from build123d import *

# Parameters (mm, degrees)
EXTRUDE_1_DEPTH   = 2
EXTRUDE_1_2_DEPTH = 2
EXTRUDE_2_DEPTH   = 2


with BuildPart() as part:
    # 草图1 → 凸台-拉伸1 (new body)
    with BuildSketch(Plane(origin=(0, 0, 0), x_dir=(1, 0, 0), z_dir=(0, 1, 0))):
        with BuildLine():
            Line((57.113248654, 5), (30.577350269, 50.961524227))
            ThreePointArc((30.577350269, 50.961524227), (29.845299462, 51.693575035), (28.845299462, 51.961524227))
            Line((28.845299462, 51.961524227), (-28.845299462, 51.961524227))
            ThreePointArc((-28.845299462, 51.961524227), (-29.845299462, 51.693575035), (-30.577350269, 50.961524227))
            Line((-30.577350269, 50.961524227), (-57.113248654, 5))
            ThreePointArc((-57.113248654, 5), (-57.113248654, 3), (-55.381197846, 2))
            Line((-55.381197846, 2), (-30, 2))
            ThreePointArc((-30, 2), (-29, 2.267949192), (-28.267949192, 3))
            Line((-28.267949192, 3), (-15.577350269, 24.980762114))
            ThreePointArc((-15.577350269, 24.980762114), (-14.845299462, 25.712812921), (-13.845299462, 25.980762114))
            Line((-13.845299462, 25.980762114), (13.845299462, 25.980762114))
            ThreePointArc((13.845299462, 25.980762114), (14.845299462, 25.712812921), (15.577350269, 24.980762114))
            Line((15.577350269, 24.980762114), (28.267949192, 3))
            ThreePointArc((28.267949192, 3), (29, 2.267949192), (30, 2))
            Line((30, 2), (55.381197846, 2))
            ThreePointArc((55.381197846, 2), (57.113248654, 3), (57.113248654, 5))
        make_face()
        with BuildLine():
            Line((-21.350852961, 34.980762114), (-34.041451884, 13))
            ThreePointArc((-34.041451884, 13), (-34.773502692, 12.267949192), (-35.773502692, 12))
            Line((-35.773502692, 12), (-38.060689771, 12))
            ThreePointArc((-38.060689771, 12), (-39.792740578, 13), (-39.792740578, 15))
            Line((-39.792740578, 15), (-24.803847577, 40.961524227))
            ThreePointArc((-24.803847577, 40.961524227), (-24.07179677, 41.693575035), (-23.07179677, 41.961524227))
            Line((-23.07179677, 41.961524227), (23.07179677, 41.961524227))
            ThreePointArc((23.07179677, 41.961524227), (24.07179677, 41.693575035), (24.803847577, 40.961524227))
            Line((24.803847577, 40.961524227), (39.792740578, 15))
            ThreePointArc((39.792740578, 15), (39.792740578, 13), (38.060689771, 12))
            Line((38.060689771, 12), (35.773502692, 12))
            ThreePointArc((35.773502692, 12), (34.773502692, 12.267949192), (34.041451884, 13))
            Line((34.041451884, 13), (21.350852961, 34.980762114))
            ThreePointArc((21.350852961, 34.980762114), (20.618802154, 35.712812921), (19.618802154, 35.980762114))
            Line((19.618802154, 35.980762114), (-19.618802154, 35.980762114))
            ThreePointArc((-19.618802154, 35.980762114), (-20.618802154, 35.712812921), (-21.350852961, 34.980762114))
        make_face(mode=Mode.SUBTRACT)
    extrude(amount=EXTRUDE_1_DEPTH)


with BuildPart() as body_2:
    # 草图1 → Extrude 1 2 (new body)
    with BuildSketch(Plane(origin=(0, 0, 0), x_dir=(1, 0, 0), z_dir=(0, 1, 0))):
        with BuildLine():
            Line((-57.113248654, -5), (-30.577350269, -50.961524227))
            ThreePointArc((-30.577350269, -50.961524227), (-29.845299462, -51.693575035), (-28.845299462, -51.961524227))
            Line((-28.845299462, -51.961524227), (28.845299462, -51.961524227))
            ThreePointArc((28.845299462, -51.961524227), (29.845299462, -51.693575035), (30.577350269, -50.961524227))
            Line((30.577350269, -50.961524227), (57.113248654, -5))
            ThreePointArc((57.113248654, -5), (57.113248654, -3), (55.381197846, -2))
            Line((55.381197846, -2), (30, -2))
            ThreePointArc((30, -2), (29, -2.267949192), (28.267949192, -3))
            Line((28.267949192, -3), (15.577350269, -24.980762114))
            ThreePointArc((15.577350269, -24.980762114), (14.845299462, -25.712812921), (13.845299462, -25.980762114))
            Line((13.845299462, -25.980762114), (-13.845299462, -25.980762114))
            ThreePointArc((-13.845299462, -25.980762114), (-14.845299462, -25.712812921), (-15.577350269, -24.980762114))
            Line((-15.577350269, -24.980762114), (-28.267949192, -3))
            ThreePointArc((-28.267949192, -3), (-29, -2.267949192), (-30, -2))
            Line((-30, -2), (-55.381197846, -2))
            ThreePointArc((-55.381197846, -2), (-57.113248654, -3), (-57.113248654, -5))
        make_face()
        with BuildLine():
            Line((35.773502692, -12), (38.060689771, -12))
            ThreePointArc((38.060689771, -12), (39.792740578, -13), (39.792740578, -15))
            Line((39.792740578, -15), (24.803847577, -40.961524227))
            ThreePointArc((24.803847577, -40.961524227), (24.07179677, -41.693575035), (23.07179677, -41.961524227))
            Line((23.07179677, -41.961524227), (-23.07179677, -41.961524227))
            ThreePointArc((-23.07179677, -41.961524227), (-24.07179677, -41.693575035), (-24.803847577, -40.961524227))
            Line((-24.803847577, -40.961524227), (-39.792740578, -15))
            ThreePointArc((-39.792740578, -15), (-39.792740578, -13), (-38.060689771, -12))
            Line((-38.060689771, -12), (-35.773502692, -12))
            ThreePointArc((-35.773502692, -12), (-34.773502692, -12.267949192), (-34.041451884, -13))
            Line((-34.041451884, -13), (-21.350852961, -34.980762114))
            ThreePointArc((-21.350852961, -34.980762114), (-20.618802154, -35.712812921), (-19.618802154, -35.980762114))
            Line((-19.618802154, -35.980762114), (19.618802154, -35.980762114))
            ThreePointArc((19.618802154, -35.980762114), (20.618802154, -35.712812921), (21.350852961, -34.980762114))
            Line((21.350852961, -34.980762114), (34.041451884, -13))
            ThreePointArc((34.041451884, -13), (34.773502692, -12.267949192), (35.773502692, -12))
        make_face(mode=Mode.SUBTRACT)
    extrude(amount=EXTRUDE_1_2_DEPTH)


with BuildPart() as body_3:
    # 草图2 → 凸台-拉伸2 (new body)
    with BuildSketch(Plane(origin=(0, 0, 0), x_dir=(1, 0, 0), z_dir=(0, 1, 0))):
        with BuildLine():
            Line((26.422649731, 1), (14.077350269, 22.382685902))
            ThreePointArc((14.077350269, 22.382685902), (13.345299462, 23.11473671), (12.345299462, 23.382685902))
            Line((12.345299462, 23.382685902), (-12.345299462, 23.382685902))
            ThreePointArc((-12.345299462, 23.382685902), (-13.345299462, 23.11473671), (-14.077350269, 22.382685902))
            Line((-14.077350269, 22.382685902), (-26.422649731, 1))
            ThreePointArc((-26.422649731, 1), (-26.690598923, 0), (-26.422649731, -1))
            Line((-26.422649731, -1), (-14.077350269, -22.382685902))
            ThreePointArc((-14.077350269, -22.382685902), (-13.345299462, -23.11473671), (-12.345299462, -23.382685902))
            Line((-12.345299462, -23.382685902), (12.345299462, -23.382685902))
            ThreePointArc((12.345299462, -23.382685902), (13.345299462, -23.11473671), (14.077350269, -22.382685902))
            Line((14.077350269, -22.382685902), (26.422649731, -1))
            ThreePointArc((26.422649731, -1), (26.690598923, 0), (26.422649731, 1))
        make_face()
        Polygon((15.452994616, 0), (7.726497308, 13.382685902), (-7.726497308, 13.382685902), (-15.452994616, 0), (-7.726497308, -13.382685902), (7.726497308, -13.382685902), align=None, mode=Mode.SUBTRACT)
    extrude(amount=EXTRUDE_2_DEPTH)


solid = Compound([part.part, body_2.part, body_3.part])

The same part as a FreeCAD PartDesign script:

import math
import FreeCAD as App
import Part
import Sketcher
Q = App.Units.Quantity

doc = App.newDocument("Part")
body = doc.addObject("PartDesign::Body", "Body")

sketch1 = body.newObject("Sketcher::SketchObject", "Sketch")
sketch1.AttachmentSupport = (doc.getObject("XZ_Plane"), [""])
sketch1.MapMode = "FlatFace"
sketch1.addGeometry([
    Part.LineSegment(App.Vector(57.113249, -5, 0), App.Vector(30.57735, -50.961524, 0)),
    Part.ArcOfCircle(Part.Circle(App.Vector(28.845299, -49.961524, 0), App.Vector(0, 0, 1), 2), math.radians(-90), math.radians(-30)),
    Part.LineSegment(App.Vector(28.845299, -51.961524, 0), App.Vector(-28.845299, -51.961524, 0)),
    Part.ArcOfCircle(Part.Circle(App.Vector(-28.845299, -49.961524, 0), App.Vector(0, 0, 1), 2), math.radians(-150), math.radians(-90)),
    Part.LineSegment(App.Vector(-30.57735, -50.961524, 0), App.Vector(-57.113249, -5, 0)),
    Part.ArcOfCircle(Part.Circle(App.Vector(-55.381198, -4, 0), App.Vector(0, 0, 1), 2), math.radians(90), math.radians(210)),
    Part.LineSegment(App.Vector(-55.381198, -2, 0), App.Vector(-30, -2, 0)),
    Part.ArcOfCircle(Part.Circle(App.Vector(-30, -4, 0), App.Vector(0, 0, 1), 2), math.radians(30), math.radians(90)),
    Part.LineSegment(App.Vector(-28.267949, -3, 0), App.Vector(-15.57735, -24.980762, 0)),
    Part.ArcOfCircle(Part.Circle(App.Vector(-13.845299, -23.980762, 0), App.Vector(0, 0, 1), 2), math.radians(-150), math.radians(-90)),
    Part.LineSegment(App.Vector(-13.845299, -25.980762, 0), App.Vector(13.845299, -25.980762, 0)),
    Part.ArcOfCircle(Part.Circle(App.Vector(13.845299, -23.980762, 0), App.Vector(0, 0, 1), 2), math.radians(-90), math.radians(-30)),
    Part.LineSegment(App.Vector(15.57735, -24.980762, 0), App.Vector(28.267949, -3, 0)),
    Part.ArcOfCircle(Part.Circle(App.Vector(30, -4, 0), App.Vector(0, 0, 1), 2), math.radians(90), math.radians(150)),
    Part.LineSegment(App.Vector(30, -2, 0), App.Vector(55.381198, -2, 0)),
    Part.ArcOfCircle(Part.Circle(App.Vector(55.381198, -4, 0), App.Vector(0, 0, 1), 2), math.radians(-30), math.radians(90)),
    Part.ArcOfCircle(Part.Circle(App.Vector(-19.618802, -33.980762, 0), App.Vector(0, 0, 1), 2), math.radians(-150), math.radians(-90)),
    Part.LineSegment(App.Vector(-21.350853, -34.980762, 0), App.Vector(-34.041452, -13, 0)),
    Part.ArcOfCircle(Part.Circle(App.Vector(-35.773503, -14, 0), App.Vector(0, 0, 1), 2), math.radians(30), math.radians(90)),
    Part.LineSegment(App.Vector(-35.773503, -12, 0), App.Vector(-38.06069, -12, 0)),
    Part.ArcOfCircle(Part.Circle(App.Vector(-38.06069, -14, 0), App.Vector(0, 0, 1), 2), math.radians(90), math.radians(210)),
    Part.LineSegment(App.Vector(-39.792741, -15, 0), App.Vector(-24.803848, -40.961524, 0)),
    Part.ArcOfCircle(Part.Circle(App.Vector(-23.071797, -39.961524, 0), App.Vector(0, 0, 1), 2), math.radians(-150), math.radians(-90)),
    Part.LineSegment(App.Vector(-23.071797, -41.961524, 0), App.Vector(23.071797, -41.961524, 0)),
    Part.ArcOfCircle(Part.Circle(App.Vector(23.071797, -39.961524, 0), App.Vector(0, 0, 1), 2), math.radians(-90), math.radians(-30)),
    Part.LineSegment(App.Vector(24.803848, -40.961524, 0), App.Vector(39.792741, -15, 0)),
    Part.ArcOfCircle(Part.Circle(App.Vector(38.06069, -14, 0), App.Vector(0, 0, 1), 2), math.radians(-30), math.radians(90)),
    Part.LineSegment(App.Vector(38.06069, -12, 0), App.Vector(35.773503, -12, 0)),
    Part.ArcOfCircle(Part.Circle(App.Vector(35.773503, -14, 0), App.Vector(0, 0, 1), 2), math.radians(90), math.radians(150)),
    Part.LineSegment(App.Vector(34.041452, -13, 0), App.Vector(21.350853, -34.980762, 0)),
    Part.ArcOfCircle(Part.Circle(App.Vector(19.618802, -33.980762, 0), App.Vector(0, 0, 1), 2), math.radians(-90), math.radians(-30)),
    Part.LineSegment(App.Vector(19.618802, -35.980762, 0), App.Vector(-19.618802, -35.980762, 0)),
], False)
sketch1.addConstraint([
    Sketcher.Constraint("Tangent", 0, 2, 1, 2),
    Sketcher.Constraint("Tangent", 1, 1, 2, 1),
    Sketcher.Constraint("Tangent", 2, 2, 3, 2),
    Sketcher.Constraint("Tangent", 3, 1, 4, 1),
    Sketcher.Constraint("Tangent", 4, 2, 5, 2),
    Sketcher.Constraint("Tangent", 5, 1, 6, 1),
    Sketcher.Constraint("Tangent", 6, 2, 7, 2),
    Sketcher.Constraint("Tangent", 7, 1, 8, 1),
    Sketcher.Constraint("Tangent", 8, 2, 9, 1),
    Sketcher.Constraint("Tangent", 9, 2, 10, 1),
    Sketcher.Constraint("Tangent", 10, 2, 11, 1),
    Sketcher.Constraint("Tangent", 11, 2, 12, 1),
    Sketcher.Constraint("Tangent", 12, 2, 13, 2),
    Sketcher.Constraint("Tangent", 13, 1, 14, 1),
    Sketcher.Constraint("Tangent", 14, 2, 15, 2),
    Sketcher.Constraint("Tangent", 15, 1, 0, 1),
    Sketcher.Constraint("Tangent", 16, 1, 17, 1),
    Sketcher.Constraint("Tangent", 17, 2, 18, 1),
    Sketcher.Constraint("Tangent", 18, 2, 19, 1),
    Sketcher.Constraint("Tangent", 19, 2, 20, 1),
    Sketcher.Constraint("Tangent", 20, 2, 21, 1),
    Sketcher.Constraint("Tangent", 21, 2, 22, 1),
    Sketcher.Constraint("Tangent", 22, 2, 23, 1),
    Sketcher.Constraint("Tangent", 23, 2, 24, 1),
    Sketcher.Constraint("Tangent", 24, 2, 25, 1),
    Sketcher.Constraint("Tangent", 25, 2, 26, 1),
    Sketcher.Constraint("Tangent", 26, 2, 27, 1),
    Sketcher.Constraint("Tangent", 27, 2, 28, 1),
    Sketcher.Constraint("Tangent", 28, 2, 29, 1),
    Sketcher.Constraint("Tangent", 29, 2, 30, 2),
    Sketcher.Constraint("Tangent", 30, 1, 31, 1),
    Sketcher.Constraint("Tangent", 31, 2, 16, 2),
    Sketcher.Constraint("Horizontal", 2),
    Sketcher.Constraint("Horizontal", 6),
    Sketcher.Constraint("Horizontal", 10),
    Sketcher.Constraint("Horizontal", 14),
    Sketcher.Constraint("Horizontal", 19),
    Sketcher.Constraint("Horizontal", 23),
    Sketcher.Constraint("Horizontal", 27),
    Sketcher.Constraint("Horizontal", 31),
    Sketcher.Constraint("Equal", 1, 3),
    Sketcher.Constraint("Equal", 3, 5),
    Sketcher.Constraint("Equal", 5, 7),
    Sketcher.Constraint("Equal", 7, 9),
    Sketcher.Constraint("Equal", 9, 11),
    Sketcher.Constraint("Equal", 11, 13),
    Sketcher.Constraint("Equal", 13, 15),
    Sketcher.Constraint("Equal", 15, 16),
    Sketcher.Constraint("Equal", 16, 18),
    Sketcher.Constraint("Equal", 18, 20),
    Sketcher.Constraint("Equal", 20, 22),
    Sketcher.Constraint("Equal", 22, 24),
    Sketcher.Constraint("Equal", 24, 26),
    Sketcher.Constraint("Equal", 26, 28),
    Sketcher.Constraint("Equal", 28, 30),
    Sketcher.Constraint("Symmetric", 7, 3, 13, 3, -2),
    Sketcher.Constraint("Symmetric", 20, 3, 26, 3, -2),
    Sketcher.Constraint("Symmetric", 0, 2, 3, 1, -2),
    Sketcher.Constraint("Symmetric", 17, 2, 28, 2, -2),
    Sketcher.Constraint("Parallel", 4, 8),
    Sketcher.Constraint("Parallel", 0, 12),
    Sketcher.Constraint("Parallel", 8, 17),
    Sketcher.Constraint("Parallel", 17, 21),
    Sketcher.Constraint("Parallel", 12, 25),
    Sketcher.Constraint("Equal", 12, 17),
    Sketcher.Constraint("Radius", 1, 2.0),
    Sketcher.Constraint("Angle", 0, Q("-120 deg")),
    Sketcher.Constraint("DistanceY", 5, 3, -1, 1, 4.0),
    Sketcher.Constraint("DistanceX", 7, 3, -1, 1, 30.0),
    Sketcher.Constraint("DistanceY", 18, 3, -1, 1, 14.0),
    Sketcher.Constraint("DistanceX", 3, 3, 9, 3, 15.0),
    Sketcher.Constraint("DistanceY", 3, 3, 22, 3, 10.0),
    Sketcher.Constraint("DistanceX", 2, 2, 2, 1, 57.690599),
    Sketcher.Constraint("DistanceX", 5, 3, 3, 3, 26.535898),
    Sketcher.Constraint("DistanceX", 16, 3, 11, 3, 33.464102),
    Sketcher.Constraint("DistanceX", 16, 3, 24, 3, 42.690599),
])
pad1 = body.newObject("PartDesign::Pad", "Pad")
pad1.Profile = sketch1
pad1.Length = 2
pad1.Reversed = True
body2 = doc.addObject("PartDesign::Body", "Body001")

sketch2 = body2.newObject("Sketcher::SketchObject", "Sketch001")
sketch2.AttachmentSupport = (doc.getObject("XZ_Plane001"), [""])
sketch2.MapMode = "FlatFace"
sketch2.addGeometry([
    Part.LineSegment(App.Vector(-57.113249, 5, 0), App.Vector(-30.57735, 50.961524, 0)),
    Part.ArcOfCircle(Part.Circle(App.Vector(-28.845299, 49.961524, 0), App.Vector(0, 0, 1), 2), math.radians(90), math.radians(150)),
    Part.LineSegment(App.Vector(-28.845299, 51.961524, 0), App.Vector(28.845299, 51.961524, 0)),
    Part.ArcOfCircle(Part.Circle(App.Vector(28.845299, 49.961524, 0), App.Vector(0, 0, 1), 2), math.radians(30), math.radians(90)),
    Part.LineSegment(App.Vector(30.57735, 50.961524, 0), App.Vector(57.113249, 5, 0)),
    Part.ArcOfCircle(Part.Circle(App.Vector(55.381198, 4, 0), App.Vector(0, 0, 1), 2), math.radians(-90), math.radians(30)),
    Part.LineSegment(App.Vector(55.381198, 2, 0), App.Vector(30, 2, 0)),
    Part.ArcOfCircle(Part.Circle(App.Vector(30, 4, 0), App.Vector(0, 0, 1), 2), math.radians(-150), math.radians(-90)),
    Part.LineSegment(App.Vector(28.267949, 3, 0), App.Vector(15.57735, 24.980762, 0)),
    Part.ArcOfCircle(Part.Circle(App.Vector(13.845299, 23.980762, 0), App.Vector(0, 0, 1), 2), math.radians(30), math.radians(90)),
    Part.LineSegment(App.Vector(13.845299, 25.980762, 0), App.Vector(-13.845299, 25.980762, 0)),
    Part.ArcOfCircle(Part.Circle(App.Vector(-13.845299, 23.980762, 0), App.Vector(0, 0, 1), 2), math.radians(90), math.radians(150)),
    Part.LineSegment(App.Vector(-15.57735, 24.980762, 0), App.Vector(-28.267949, 3, 0)),
    Part.ArcOfCircle(Part.Circle(App.Vector(-30, 4, 0), App.Vector(0, 0, 1), 2), math.radians(-90), math.radians(-30)),
    Part.LineSegment(App.Vector(-30, 2, 0), App.Vector(-55.381198, 2, 0)),
    Part.ArcOfCircle(Part.Circle(App.Vector(-55.381198, 4, 0), App.Vector(0, 0, 1), 2), math.radians(150), math.radians(270)),
    Part.ArcOfCircle(Part.Circle(App.Vector(35.773503, 14, 0), App.Vector(0, 0, 1), 2), math.radians(-150), math.radians(-90)),
    Part.LineSegment(App.Vector(35.773503, 12, 0), App.Vector(38.06069, 12, 0)),
    Part.ArcOfCircle(Part.Circle(App.Vector(38.06069, 14, 0), App.Vector(0, 0, 1), 2), math.radians(-90), math.radians(30)),
    Part.LineSegment(App.Vector(39.792741, 15, 0), App.Vector(24.803848, 40.961524, 0)),
    Part.ArcOfCircle(Part.Circle(App.Vector(23.071797, 39.961524, 0), App.Vector(0, 0, 1), 2), math.radians(30), math.radians(90)),
    Part.LineSegment(App.Vector(23.071797, 41.961524, 0), App.Vector(-23.071797, 41.961524, 0)),
    Part.ArcOfCircle(Part.Circle(App.Vector(-23.071797, 39.961524, 0), App.Vector(0, 0, 1), 2), math.radians(90), math.radians(150)),
    Part.LineSegment(App.Vector(-24.803848, 40.961524, 0), App.Vector(-39.792741, 15, 0)),
    Part.ArcOfCircle(Part.Circle(App.Vector(-38.06069, 14, 0), App.Vector(0, 0, 1), 2), math.radians(150), math.radians(270)),
    Part.LineSegment(App.Vector(-38.06069, 12, 0), App.Vector(-35.773503, 12, 0)),
    Part.ArcOfCircle(Part.Circle(App.Vector(-35.773503, 14, 0), App.Vector(0, 0, 1), 2), math.radians(-90), math.radians(-30)),
    Part.LineSegment(App.Vector(-34.041452, 13, 0), App.Vector(-21.350853, 34.980762, 0)),
    Part.ArcOfCircle(Part.Circle(App.Vector(-19.618802, 33.980762, 0), App.Vector(0, 0, 1), 2), math.radians(90), math.radians(150)),
    Part.LineSegment(App.Vector(-19.618802, 35.980762, 0), App.Vector(19.618802, 35.980762, 0)),
    Part.ArcOfCircle(Part.Circle(App.Vector(19.618802, 33.980762, 0), App.Vector(0, 0, 1), 2), math.radians(30), math.radians(90)),
    Part.LineSegment(App.Vector(21.350853, 34.980762, 0), App.Vector(34.041452, 13, 0)),
], False)
sketch2.addConstraint([
    Sketcher.Constraint("Tangent", 0, 2, 1, 2),
    Sketcher.Constraint("Tangent", 1, 1, 2, 1),
    Sketcher.Constraint("Tangent", 2, 2, 3, 2),
    Sketcher.Constraint("Tangent", 3, 1, 4, 1),
    Sketcher.Constraint("Tangent", 4, 2, 5, 2),
    Sketcher.Constraint("Tangent", 5, 1, 6, 1),
    Sketcher.Constraint("Tangent", 6, 2, 7, 2),
    Sketcher.Constraint("Tangent", 7, 1, 8, 1),
    Sketcher.Constraint("Tangent", 8, 2, 9, 1),
    Sketcher.Constraint("Tangent", 9, 2, 10, 1),
    Sketcher.Constraint("Tangent", 10, 2, 11, 1),
    Sketcher.Constraint("Tangent", 11, 2, 12, 1),
    Sketcher.Constraint("Tangent", 12, 2, 13, 2),
    Sketcher.Constraint("Tangent", 13, 1, 14, 1),
    Sketcher.Constraint("Tangent", 14, 2, 15, 2),
    Sketcher.Constraint("Tangent", 15, 1, 0, 1),
    Sketcher.Constraint("Tangent", 16, 2, 17, 1),
    Sketcher.Constraint("Tangent", 17, 2, 18, 1),
    Sketcher.Constraint("Tangent", 18, 2, 19, 1),
    Sketcher.Constraint("Tangent", 19, 2, 20, 1),
    Sketcher.Constraint("Tangent", 20, 2, 21, 1),
    Sketcher.Constraint("Tangent", 21, 2, 22, 1),
    Sketcher.Constraint("Tangent", 22, 2, 23, 1),
    Sketcher.Constraint("Tangent", 23, 2, 24, 1),
    Sketcher.Constraint("Tangent", 24, 2, 25, 1),
    Sketcher.Constraint("Tangent", 25, 2, 26, 1),
    Sketcher.Constraint("Tangent", 26, 2, 27, 1),
    Sketcher.Constraint("Tangent", 27, 2, 28, 2),
    Sketcher.Constraint("Tangent", 28, 1, 29, 1),
    Sketcher.Constraint("Tangent", 29, 2, 30, 2),
    Sketcher.Constraint("Tangent", 30, 1, 31, 1),
    Sketcher.Constraint("Tangent", 31, 2, 16, 1),
    Sketcher.Constraint("Horizontal", 2),
    Sketcher.Constraint("Horizontal", 6),
    Sketcher.Constraint("Horizontal", 10),
    Sketcher.Constraint("Horizontal", 14),
    Sketcher.Constraint("Horizontal", 17),
    Sketcher.Constraint("Horizontal", 21),
    Sketcher.Constraint("Horizontal", 25),
    Sketcher.Constraint("Horizontal", 29),
    Sketcher.Constraint("Equal", 1, 3),
    Sketcher.Constraint("Equal", 3, 5),
    Sketcher.Constraint("Equal", 5, 7),
    Sketcher.Constraint("Equal", 7, 9),
    Sketcher.Constraint("Equal", 9, 11),
    Sketcher.Constraint("Equal", 11, 13),
    Sketcher.Constraint("Equal", 13, 15),
    Sketcher.Constraint("Equal", 15, 16),
    Sketcher.Constraint("Equal", 16, 18),
    Sketcher.Constraint("Equal", 18, 20),
    Sketcher.Constraint("Equal", 20, 22),
    Sketcher.Constraint("Equal", 22, 24),
    Sketcher.Constraint("Equal", 24, 26),
    Sketcher.Constraint("Equal", 26, 28),
    Sketcher.Constraint("Equal", 28, 30),
    Sketcher.Constraint("Symmetric", 7, 3, 13, 3, -2),
    Sketcher.Constraint("Symmetric", 18, 3, 24, 3, -2),
    Sketcher.Constraint("Symmetric", 0, 2, 3, 1, -2),
    Sketcher.Constraint("Symmetric", 27, 2, 30, 1, -2),
    Sketcher.Constraint("Parallel", 4, 8),
    Sketcher.Constraint("Parallel", 0, 12),
    Sketcher.Constraint("Parallel", 8, 19),
    Sketcher.Constraint("Parallel", 12, 23),
    Sketcher.Constraint("Parallel", 23, 27),
    Sketcher.Constraint("Equal", 12, 27),
    Sketcher.Constraint("Radius", 1, 2.0),
    Sketcher.Constraint("Angle", 0, Q("60 deg")),
    Sketcher.Constraint("DistanceY", -1, 1, 5, 3, 4.0),
    Sketcher.Constraint("DistanceX", -1, 1, 7, 3, 30.0),
    Sketcher.Constraint("DistanceY", -1, 1, 16, 3, 14.0),
    Sketcher.Constraint("DistanceX", 9, 3, 3, 3, 15.0),
    Sketcher.Constraint("DistanceY", 20, 3, 3, 3, 10.0),
    Sketcher.Constraint("DistanceX", 2, 1, 2, 2, 57.690599),
    Sketcher.Constraint("DistanceX", 3, 3, 5, 3, 26.535898),
    Sketcher.Constraint("DistanceX", 17, 1, 17, 2, 2.287187),
    Sketcher.Constraint("DistanceX", 21, 2, 21, 1, 46.143594),
])
pad2 = body2.newObject("PartDesign::Pad", "Pad001")
pad2.Profile = sketch2
pad2.Length = 2
pad2.Reversed = True
body3 = doc.addObject("PartDesign::Body", "Body002")

sketch3 = body3.newObject("Sketcher::SketchObject", "Sketch002")
sketch3.AttachmentSupport = (doc.getObject("XZ_Plane002"), [""])
sketch3.MapMode = "FlatFace"
sketch3.addGeometry([
    Part.LineSegment(App.Vector(26.42265, -1, 0), App.Vector(14.07735, -22.382686, 0)),
    Part.ArcOfCircle(Part.Circle(App.Vector(12.345299, -21.382686, 0), App.Vector(0, 0, 1), 2), math.radians(-90), math.radians(-30)),
    Part.LineSegment(App.Vector(12.345299, -23.382686, 0), App.Vector(-12.345299, -23.382686, 0)),
    Part.ArcOfCircle(Part.Circle(App.Vector(-12.345299, -21.382686, 0), App.Vector(0, 0, 1), 2), math.radians(-150), math.radians(-90)),
    Part.LineSegment(App.Vector(-14.07735, -22.382686, 0), App.Vector(-26.42265, -1, 0)),
    Part.ArcOfCircle(Part.Circle(App.Vector(-24.690599, 0, 0), App.Vector(0, 0, 1), 2), math.radians(150), math.radians(210)),
    Part.LineSegment(App.Vector(-26.42265, 1, 0), App.Vector(-14.07735, 22.382686, 0)),
    Part.ArcOfCircle(Part.Circle(App.Vector(-12.345299, 21.382686, 0), App.Vector(0, 0, 1), 2), math.radians(90), math.radians(150)),
    Part.LineSegment(App.Vector(-12.345299, 23.382686, 0), App.Vector(12.345299, 23.382686, 0)),
    Part.ArcOfCircle(Part.Circle(App.Vector(12.345299, 21.382686, 0), App.Vector(0, 0, 1), 2), math.radians(30), math.radians(90)),
    Part.LineSegment(App.Vector(14.07735, 22.382686, 0), App.Vector(26.42265, 1, 0)),
    Part.ArcOfCircle(Part.Circle(App.Vector(24.690599, 0, 0), App.Vector(0, 0, 1), 2), math.radians(-30), math.radians(30)),
    Part.LineSegment(App.Vector(7.726497, -13.382686, 0), App.Vector(15.452995, 0, 0)),
    Part.LineSegment(App.Vector(15.452995, 0, 0), App.Vector(7.726497, 13.382686, 0)),
    Part.LineSegment(App.Vector(7.726497, 13.382686, 0), App.Vector(-7.726497, 13.382686, 0)),
    Part.LineSegment(App.Vector(-7.726497, 13.382686, 0), App.Vector(-15.452995, 0, 0)),
    Part.LineSegment(App.Vector(-15.452995, 0, 0), App.Vector(-7.726497, -13.382686, 0)),
    Part.LineSegment(App.Vector(-7.726497, -13.382686, 0), App.Vector(7.726497, -13.382686, 0)),
], False)
sketch3.addConstraint([
    Sketcher.Constraint("Tangent", 0, 2, 1, 2),
    Sketcher.Constraint("Tangent", 1, 1, 2, 1),
    Sketcher.Constraint("Tangent", 2, 2, 3, 2),
    Sketcher.Constraint("Tangent", 3, 1, 4, 1),
    Sketcher.Constraint("Tangent", 4, 2, 5, 2),
    Sketcher.Constraint("Tangent", 5, 1, 6, 1),
    Sketcher.Constraint("Tangent", 6, 2, 7, 2),
    Sketcher.Constraint("Tangent", 7, 1, 8, 1),
    Sketcher.Constraint("Tangent", 8, 2, 9, 2),
    Sketcher.Constraint("Tangent", 9, 1, 10, 1),
    Sketcher.Constraint("Tangent", 10, 2, 11, 2),
    Sketcher.Constraint("Tangent", 11, 1, 0, 1),
    Sketcher.Constraint("Coincident", 12, 2, 13, 1),
    Sketcher.Constraint("Coincident", 13, 2, 14, 1),
    Sketcher.Constraint("Coincident", 14, 2, 15, 1),
    Sketcher.Constraint("Coincident", 15, 2, 16, 1),
    Sketcher.Constraint("Coincident", 16, 2, 17, 1),
    Sketcher.Constraint("Coincident", 17, 2, 12, 1),
    Sketcher.Constraint("Horizontal", 2),
    Sketcher.Constraint("Horizontal", 8),
    Sketcher.Constraint("Horizontal", 14),
    Sketcher.Constraint("Horizontal", 17),
    Sketcher.Constraint("Equal", 1, 3),
    Sketcher.Constraint("Equal", 3, 5),
    Sketcher.Constraint("Equal", 5, 7),
    Sketcher.Constraint("Equal", 7, 9),
    Sketcher.Constraint("Equal", 9, 11),
    Sketcher.Constraint("Symmetric", 1, 3, 7, 3, -1, 1),
    Sketcher.Constraint("Symmetric", 5, 3, 11, 3, -1, 1),
    Sketcher.Constraint("Symmetric", 12, 2, 15, 2, -1, 1),
    Sketcher.Constraint("Symmetric", 13, 2, 16, 2, -1, 1),
    Sketcher.Constraint("Symmetric", 0, 2, 3, 1, -2),
    Sketcher.Constraint("PointOnObject", 12, 2, -1),
    Sketcher.Constraint("Parallel", 4, 10),
    Sketcher.Constraint("Parallel", 6, 12),
    Sketcher.Constraint("Parallel", 10, 13),
    Sketcher.Constraint("Parallel", 12, 15),
    Sketcher.Constraint("Radius", 1, 2.0),
    Sketcher.Constraint("Angle", 0, Q("-120 deg")),
    Sketcher.Constraint("DistanceY", 13, 2, 9, 3, 8.0),
    Sketcher.Constraint("DistanceX", 2, 2, 2, 1, 24.690599),
    Sketcher.Constraint("Distance", 0, 24.690599),
    Sketcher.Constraint("DistanceX", 13, 2, 11, 3, 16.964102),
])
pad3 = body3.newObject("PartDesign::Pad", "Pad002")
pad3.Profile = sketch3
pad3.Length = 2
pad3.Reversed = True

doc.recompute()
